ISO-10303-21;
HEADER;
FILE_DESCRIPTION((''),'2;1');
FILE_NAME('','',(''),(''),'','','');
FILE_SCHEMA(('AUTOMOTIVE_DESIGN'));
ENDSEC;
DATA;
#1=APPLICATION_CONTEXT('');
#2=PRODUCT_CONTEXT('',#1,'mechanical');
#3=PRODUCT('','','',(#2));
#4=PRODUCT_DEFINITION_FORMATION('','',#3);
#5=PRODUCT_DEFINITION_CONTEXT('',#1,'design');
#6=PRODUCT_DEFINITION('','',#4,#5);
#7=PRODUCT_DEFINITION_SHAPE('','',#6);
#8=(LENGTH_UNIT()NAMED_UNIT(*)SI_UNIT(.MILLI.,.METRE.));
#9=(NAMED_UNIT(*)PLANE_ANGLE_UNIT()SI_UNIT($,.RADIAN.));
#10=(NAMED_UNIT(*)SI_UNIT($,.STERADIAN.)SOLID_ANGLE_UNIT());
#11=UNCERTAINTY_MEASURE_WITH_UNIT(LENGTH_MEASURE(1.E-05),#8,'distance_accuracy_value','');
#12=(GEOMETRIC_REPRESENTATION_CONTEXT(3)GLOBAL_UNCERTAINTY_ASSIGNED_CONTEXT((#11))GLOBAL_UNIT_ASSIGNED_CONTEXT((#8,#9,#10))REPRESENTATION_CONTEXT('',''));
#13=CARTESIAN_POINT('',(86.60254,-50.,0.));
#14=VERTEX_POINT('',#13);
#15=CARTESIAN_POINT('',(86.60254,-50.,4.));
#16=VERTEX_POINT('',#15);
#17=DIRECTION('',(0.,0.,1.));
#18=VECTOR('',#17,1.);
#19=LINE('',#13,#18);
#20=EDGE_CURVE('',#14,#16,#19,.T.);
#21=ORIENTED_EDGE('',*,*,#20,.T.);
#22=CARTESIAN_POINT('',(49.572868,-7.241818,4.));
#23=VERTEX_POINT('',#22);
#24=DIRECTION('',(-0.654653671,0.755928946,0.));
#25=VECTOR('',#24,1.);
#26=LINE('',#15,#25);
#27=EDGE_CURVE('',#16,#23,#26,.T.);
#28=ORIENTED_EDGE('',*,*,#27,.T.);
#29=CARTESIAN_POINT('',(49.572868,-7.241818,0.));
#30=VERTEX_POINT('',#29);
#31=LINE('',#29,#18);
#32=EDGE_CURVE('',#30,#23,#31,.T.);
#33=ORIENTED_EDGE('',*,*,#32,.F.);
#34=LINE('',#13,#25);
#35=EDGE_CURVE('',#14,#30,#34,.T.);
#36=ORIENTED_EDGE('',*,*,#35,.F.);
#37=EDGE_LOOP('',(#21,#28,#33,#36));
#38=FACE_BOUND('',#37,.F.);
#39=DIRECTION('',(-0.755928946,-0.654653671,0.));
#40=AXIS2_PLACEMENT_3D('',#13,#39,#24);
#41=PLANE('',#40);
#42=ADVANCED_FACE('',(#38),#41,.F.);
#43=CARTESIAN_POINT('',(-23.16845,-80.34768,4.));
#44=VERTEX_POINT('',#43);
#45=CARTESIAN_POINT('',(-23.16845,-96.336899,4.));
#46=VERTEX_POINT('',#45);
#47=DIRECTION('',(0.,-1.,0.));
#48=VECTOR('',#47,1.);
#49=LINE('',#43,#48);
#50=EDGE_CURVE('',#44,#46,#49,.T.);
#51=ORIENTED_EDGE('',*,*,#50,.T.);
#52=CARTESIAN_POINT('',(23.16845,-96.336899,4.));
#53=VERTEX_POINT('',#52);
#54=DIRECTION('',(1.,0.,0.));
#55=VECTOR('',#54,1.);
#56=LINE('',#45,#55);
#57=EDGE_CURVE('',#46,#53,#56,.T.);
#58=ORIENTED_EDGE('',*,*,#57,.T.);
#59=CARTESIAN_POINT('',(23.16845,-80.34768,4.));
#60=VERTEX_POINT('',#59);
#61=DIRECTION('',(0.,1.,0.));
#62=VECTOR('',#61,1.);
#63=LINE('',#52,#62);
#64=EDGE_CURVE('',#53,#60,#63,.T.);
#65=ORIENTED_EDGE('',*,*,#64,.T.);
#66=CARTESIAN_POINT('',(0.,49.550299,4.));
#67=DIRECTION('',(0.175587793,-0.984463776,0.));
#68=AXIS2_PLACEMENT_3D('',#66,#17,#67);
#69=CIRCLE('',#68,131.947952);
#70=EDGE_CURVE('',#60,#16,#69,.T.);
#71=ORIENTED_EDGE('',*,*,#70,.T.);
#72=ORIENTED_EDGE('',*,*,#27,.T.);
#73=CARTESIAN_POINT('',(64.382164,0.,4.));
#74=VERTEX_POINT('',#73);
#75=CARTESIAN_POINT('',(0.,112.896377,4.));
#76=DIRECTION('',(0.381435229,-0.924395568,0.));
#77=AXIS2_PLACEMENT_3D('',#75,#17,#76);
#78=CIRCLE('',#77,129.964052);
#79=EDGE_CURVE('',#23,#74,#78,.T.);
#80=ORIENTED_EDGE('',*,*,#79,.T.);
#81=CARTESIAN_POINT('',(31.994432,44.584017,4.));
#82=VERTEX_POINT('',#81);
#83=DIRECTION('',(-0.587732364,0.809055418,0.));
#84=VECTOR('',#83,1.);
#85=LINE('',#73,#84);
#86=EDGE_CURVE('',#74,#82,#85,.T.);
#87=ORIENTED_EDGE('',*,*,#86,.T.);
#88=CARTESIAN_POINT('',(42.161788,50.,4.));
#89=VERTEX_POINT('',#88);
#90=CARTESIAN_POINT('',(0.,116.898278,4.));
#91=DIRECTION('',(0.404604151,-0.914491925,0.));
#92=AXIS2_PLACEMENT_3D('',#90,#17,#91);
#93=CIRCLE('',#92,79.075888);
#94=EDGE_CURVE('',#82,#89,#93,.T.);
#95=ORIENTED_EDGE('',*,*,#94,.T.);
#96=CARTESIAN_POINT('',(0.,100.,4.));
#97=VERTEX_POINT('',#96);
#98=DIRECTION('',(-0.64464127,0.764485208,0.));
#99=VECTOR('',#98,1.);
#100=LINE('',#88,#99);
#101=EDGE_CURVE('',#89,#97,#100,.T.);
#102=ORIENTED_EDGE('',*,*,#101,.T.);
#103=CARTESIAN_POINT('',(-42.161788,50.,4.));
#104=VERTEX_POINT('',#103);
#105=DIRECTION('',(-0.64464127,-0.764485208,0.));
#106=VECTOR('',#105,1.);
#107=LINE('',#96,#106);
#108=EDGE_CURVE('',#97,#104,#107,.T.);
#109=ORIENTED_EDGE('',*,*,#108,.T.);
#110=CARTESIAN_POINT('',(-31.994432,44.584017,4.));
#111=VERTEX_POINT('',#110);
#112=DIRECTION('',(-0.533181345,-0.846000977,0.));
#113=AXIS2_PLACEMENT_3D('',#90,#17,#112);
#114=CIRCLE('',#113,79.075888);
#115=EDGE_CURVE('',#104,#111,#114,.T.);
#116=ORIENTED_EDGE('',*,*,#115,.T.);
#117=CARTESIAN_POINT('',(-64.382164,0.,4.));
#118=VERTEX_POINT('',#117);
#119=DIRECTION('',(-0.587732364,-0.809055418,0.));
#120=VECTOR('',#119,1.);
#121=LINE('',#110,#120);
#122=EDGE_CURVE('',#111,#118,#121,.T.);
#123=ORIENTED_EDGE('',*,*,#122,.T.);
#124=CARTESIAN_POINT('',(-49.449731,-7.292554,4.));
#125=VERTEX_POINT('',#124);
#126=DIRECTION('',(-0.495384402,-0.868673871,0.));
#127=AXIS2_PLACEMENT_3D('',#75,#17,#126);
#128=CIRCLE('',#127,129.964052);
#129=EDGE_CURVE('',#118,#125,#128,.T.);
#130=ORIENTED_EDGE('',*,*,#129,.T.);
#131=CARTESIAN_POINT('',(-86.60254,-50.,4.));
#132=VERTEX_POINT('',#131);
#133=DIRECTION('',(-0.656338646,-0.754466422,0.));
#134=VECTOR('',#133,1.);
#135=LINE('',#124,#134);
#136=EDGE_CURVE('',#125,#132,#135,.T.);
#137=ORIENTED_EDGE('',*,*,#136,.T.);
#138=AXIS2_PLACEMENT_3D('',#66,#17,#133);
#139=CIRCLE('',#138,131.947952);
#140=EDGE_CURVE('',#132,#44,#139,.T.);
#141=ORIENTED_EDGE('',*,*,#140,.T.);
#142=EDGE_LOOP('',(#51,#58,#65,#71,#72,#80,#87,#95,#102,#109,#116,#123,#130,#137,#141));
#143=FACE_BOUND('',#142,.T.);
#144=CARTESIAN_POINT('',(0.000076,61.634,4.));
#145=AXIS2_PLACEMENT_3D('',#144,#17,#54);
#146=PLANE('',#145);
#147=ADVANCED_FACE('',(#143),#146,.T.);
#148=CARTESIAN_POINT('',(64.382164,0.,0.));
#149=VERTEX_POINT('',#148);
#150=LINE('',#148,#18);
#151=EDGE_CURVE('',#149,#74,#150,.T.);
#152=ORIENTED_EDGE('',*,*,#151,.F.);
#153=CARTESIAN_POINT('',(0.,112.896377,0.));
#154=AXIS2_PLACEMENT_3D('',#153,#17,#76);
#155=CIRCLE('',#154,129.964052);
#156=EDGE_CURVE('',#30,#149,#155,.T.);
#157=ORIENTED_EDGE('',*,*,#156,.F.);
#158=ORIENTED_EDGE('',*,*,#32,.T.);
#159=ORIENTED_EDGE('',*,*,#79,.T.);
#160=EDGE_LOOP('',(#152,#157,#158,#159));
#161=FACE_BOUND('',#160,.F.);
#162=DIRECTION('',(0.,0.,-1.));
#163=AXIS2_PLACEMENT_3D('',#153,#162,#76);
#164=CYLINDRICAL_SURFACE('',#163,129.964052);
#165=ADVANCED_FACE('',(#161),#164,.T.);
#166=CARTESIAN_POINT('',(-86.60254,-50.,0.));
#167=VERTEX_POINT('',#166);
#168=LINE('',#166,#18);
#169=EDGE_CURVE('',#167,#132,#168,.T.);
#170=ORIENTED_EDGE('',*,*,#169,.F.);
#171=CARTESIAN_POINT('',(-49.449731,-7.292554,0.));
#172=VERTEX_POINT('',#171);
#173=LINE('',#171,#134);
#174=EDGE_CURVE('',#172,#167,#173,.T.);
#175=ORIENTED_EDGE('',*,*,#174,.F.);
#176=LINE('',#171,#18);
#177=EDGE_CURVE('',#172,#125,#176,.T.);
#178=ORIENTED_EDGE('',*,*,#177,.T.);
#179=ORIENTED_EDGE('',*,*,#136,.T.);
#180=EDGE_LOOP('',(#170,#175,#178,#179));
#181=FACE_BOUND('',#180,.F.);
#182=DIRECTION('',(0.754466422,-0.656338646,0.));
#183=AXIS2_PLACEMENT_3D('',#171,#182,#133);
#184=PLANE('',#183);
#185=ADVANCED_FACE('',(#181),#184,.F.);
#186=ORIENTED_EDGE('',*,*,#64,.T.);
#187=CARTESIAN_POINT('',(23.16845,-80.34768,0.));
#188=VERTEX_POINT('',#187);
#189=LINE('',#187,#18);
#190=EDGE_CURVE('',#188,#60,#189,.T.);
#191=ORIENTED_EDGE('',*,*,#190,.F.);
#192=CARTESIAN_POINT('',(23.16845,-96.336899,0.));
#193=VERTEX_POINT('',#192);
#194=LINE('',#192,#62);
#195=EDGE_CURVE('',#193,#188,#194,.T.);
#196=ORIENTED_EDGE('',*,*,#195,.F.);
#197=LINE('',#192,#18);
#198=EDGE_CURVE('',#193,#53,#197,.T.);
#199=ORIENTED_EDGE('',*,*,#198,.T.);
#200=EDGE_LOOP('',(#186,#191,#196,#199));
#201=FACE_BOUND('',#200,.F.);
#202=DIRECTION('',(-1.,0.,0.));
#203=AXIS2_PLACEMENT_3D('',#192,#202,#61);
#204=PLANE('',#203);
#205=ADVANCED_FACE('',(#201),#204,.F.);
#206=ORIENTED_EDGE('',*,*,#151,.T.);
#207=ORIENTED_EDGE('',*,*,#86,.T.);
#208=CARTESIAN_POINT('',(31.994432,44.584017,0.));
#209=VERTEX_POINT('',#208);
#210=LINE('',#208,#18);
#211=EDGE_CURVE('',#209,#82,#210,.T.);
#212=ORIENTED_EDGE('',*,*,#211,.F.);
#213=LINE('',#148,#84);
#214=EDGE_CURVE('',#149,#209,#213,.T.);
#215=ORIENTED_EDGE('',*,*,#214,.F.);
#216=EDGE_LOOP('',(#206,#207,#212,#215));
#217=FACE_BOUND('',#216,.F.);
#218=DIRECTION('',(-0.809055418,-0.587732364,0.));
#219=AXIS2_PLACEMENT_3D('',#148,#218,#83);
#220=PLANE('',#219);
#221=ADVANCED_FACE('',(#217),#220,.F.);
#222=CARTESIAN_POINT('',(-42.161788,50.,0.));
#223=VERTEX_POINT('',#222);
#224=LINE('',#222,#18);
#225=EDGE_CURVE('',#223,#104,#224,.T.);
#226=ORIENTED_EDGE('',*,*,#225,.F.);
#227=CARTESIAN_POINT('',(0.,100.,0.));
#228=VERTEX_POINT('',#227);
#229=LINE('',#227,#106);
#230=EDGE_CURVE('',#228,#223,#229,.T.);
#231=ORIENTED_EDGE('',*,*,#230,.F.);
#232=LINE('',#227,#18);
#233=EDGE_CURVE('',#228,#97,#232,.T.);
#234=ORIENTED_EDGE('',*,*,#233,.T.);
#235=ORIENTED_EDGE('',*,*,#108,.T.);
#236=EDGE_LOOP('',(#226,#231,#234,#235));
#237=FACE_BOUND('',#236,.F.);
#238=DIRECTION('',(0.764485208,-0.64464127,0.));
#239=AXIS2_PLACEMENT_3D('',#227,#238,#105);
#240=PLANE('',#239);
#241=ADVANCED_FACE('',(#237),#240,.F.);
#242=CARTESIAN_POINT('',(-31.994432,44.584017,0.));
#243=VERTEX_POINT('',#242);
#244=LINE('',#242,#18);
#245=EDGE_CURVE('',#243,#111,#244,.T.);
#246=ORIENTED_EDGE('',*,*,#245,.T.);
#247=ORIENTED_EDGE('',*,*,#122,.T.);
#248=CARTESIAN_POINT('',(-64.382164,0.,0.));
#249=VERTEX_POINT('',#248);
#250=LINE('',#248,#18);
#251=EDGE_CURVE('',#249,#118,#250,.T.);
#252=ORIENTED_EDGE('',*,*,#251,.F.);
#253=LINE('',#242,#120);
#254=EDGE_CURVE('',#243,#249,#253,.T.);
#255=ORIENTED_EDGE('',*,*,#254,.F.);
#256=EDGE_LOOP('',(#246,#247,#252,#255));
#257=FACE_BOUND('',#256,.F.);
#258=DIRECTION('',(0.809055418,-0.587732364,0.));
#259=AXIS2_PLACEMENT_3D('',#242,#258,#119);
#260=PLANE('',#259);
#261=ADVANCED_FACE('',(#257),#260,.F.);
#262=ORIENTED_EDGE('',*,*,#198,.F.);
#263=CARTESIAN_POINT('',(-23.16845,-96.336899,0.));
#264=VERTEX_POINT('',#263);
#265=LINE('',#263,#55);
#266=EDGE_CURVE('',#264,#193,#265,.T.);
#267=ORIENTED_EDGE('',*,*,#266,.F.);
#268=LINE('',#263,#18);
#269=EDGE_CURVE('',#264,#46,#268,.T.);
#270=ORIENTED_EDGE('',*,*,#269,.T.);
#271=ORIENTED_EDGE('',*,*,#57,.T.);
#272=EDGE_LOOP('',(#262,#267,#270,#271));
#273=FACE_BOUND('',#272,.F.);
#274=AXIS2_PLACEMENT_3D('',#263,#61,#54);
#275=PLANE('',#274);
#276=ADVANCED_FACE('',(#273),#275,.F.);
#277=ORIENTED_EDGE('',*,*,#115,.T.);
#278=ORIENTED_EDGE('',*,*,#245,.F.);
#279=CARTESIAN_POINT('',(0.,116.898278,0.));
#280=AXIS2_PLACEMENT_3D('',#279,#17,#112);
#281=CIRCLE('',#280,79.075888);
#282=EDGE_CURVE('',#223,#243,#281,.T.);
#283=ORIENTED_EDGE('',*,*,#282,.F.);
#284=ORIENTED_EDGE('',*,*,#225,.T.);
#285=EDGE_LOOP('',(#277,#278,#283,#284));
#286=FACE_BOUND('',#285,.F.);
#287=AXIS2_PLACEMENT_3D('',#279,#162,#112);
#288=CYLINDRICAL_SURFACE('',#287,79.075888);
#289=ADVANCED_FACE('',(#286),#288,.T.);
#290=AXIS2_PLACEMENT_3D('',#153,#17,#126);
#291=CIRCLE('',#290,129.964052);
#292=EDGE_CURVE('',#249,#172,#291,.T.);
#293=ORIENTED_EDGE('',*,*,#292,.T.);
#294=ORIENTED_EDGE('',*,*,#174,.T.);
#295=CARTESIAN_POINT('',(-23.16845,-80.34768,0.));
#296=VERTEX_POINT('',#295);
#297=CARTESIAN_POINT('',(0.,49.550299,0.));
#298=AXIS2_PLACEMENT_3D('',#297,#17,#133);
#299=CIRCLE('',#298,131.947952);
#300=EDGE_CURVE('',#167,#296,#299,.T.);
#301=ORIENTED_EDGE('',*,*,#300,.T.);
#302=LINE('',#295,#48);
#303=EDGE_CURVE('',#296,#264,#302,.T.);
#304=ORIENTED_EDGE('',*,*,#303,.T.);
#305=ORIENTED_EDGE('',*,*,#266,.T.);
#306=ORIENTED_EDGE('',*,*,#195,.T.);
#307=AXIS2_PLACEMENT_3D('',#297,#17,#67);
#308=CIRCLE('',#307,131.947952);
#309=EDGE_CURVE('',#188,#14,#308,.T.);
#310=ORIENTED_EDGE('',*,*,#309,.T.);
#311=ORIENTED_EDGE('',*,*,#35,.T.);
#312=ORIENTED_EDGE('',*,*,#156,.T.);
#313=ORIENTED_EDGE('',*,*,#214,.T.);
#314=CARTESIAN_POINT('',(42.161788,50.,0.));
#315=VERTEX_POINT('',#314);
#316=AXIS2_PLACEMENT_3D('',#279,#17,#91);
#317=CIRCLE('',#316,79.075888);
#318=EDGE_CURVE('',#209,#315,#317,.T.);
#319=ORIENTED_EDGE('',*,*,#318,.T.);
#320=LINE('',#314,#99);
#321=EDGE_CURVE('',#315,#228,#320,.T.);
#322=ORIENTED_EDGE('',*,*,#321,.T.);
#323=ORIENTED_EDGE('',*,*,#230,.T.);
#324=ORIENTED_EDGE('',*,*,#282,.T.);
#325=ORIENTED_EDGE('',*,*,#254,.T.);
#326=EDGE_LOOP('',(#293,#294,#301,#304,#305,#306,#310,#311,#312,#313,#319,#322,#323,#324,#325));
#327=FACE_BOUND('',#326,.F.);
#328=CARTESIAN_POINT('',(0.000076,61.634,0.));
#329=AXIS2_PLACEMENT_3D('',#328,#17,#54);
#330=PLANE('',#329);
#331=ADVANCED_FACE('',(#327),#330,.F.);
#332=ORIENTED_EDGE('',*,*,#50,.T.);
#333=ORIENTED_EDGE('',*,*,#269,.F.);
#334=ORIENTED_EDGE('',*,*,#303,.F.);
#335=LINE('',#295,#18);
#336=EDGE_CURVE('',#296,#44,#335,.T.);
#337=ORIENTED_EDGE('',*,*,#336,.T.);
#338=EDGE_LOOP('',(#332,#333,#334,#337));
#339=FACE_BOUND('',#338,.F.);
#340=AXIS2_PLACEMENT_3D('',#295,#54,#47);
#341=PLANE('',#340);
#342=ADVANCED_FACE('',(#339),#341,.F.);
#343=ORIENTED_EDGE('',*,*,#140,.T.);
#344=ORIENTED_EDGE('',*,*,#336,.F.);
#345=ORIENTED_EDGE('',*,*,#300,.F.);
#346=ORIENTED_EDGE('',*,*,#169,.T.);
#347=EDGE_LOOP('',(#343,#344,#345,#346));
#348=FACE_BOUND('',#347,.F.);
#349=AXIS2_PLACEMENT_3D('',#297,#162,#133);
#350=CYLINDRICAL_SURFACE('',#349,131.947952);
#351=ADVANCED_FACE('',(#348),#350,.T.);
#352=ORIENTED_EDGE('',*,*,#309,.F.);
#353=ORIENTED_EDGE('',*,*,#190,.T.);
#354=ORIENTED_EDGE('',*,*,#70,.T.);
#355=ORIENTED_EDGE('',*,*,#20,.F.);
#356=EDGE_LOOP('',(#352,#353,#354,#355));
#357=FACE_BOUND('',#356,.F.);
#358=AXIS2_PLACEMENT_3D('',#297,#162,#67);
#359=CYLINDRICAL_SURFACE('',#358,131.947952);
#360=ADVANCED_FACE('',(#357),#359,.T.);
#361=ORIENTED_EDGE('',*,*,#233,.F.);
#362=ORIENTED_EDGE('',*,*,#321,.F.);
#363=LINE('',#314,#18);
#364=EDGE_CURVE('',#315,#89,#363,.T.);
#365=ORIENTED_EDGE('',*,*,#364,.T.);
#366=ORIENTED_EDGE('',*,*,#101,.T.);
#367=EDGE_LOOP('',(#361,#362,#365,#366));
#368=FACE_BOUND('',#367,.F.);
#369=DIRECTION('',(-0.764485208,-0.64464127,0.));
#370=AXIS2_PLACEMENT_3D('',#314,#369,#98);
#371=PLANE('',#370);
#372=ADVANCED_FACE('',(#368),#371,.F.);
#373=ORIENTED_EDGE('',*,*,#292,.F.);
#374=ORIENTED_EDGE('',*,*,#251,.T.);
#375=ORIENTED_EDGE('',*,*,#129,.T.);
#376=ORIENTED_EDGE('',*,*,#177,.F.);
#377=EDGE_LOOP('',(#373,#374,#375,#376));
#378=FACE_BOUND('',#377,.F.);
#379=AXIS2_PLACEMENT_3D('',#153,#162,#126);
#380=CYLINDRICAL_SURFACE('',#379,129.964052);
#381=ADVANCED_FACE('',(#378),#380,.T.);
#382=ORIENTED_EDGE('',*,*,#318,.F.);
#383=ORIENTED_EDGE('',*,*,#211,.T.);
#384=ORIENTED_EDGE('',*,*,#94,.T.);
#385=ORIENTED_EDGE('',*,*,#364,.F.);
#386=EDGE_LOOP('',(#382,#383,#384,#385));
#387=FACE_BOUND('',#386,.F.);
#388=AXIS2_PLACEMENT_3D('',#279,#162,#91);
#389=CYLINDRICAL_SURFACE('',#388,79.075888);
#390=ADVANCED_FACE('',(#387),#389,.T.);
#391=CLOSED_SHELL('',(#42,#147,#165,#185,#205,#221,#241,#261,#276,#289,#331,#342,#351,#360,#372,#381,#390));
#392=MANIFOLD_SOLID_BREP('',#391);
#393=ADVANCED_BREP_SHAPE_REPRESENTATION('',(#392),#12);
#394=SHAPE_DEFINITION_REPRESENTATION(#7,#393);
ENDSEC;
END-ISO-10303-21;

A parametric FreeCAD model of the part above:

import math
import FreeCAD as App
import Part
import Sketcher
Q = App.Units.Quantity

doc = App.newDocument("Part")
body = doc.addObject("PartDesign::Body", "Body")

sketch1 = body.newObject("Sketcher::SketchObject", "Sketch")
sketch1.AttachmentSupport = (doc.getObject("XY_Plane"), [""])
sketch1.MapMode = "FlatFace"
sketch1.addGeometry([
    Part.LineSegment(App.Vector(0, 100, 0), App.Vector(-42.161788, 50, 0)),
    Part.ArcOfCircle(Part.Circle(App.Vector(0, 116.898278, 0), App.Vector(0, 0, 1), 79.075888), math.radians(-122.220659), math.radians(-113.866324)),
    Part.LineSegment(App.Vector(-31.994432, 44.584017, 0), App.Vector(-64.382164, 0, 0)),
    Part.ArcOfCircle(Part.Circle(App.Vector(0, 112.896377, 0), App.Vector(0, 0, 1), 129.964052), math.radians(-119.695101), math.radians(-112.363899)),
    Part.LineSegment(App.Vector(-49.449731, -7.292554, 0), App.Vector(-86.60254, -50, 0)),
    Part.ArcOfCircle(Part.Circle(App.Vector(0, 49.550299, 0), App.Vector(0, 0, 1), 131.947952), math.radians(-131.021231), math.radians(-100.112866)),
    Part.LineSegment(App.Vector(-23.16845, -80.34768, 0), App.Vector(-23.16845, -96.336899, 0)),
    Part.LineSegment(App.Vector(-23.16845, -96.336899, 0), App.Vector(23.16845, -96.336899, 0)),
    Part.LineSegment(App.Vector(23.16845, -96.336899, 0), App.Vector(23.16845, -80.34768, 0)),
    Part.ArcOfCircle(Part.Circle(App.Vector(0, 49.550299, 0), App.Vector(0, 0, 1), 131.947952), math.radians(-79.887134), math.radians(-48.978769)),
    Part.LineSegment(App.Vector(86.60254, -50, 0), App.Vector(49.572868, -7.241817, 0)),
    Part.ArcOfCircle(Part.Circle(App.Vector(0, 112.896377, 0), App.Vector(0, 0, 1), 129.964052), math.radians(-67.577388), math.radians(-60.304899)),
    Part.LineSegment(App.Vector(64.382164, 0, 0), App.Vector(31.994432, 44.584017, 0)),
    Part.ArcOfCircle(Part.Circle(App.Vector(0, 116.898278, 0), App.Vector(0, 0, 1), 79.075888), math.radians(-66.133676), math.radians(-57.779341)),
    Part.LineSegment(App.Vector(42.161788, 50, 0), App.Vector(0, 100, 0)),
], False)
sketch1.addConstraint([
    Sketcher.Constraint("Coincident", 0, 2, 1, 1),
    Sketcher.Constraint("Coincident", 1, 2, 2, 1),
    Sketcher.Constraint("Coincident", 2, 2, 3, 1),
    Sketcher.Constraint("Coincident", 3, 2, 4, 1),
    Sketcher.Constraint("Coincident", 4, 2, 5, 1),
    Sketcher.Constraint("Coincident", 5, 2, 6, 1),
    Sketcher.Constraint("Coincident", 6, 2, 7, 1),
    Sketcher.Constraint("Coincident", 7, 2, 8, 1),
    Sketcher.Constraint("Coincident", 8, 2, 9, 1),
    Sketcher.Constraint("Coincident", 9, 2, 10, 1),
    Sketcher.Constraint("Coincident", 10, 2, 11, 1),
    Sketcher.Constraint("Coincident", 11, 2, 12, 1),
    Sketcher.Constraint("Coincident", 12, 2, 13, 1),
    Sketcher.Constraint("Coincident", 13, 2, 14, 1),
    Sketcher.Constraint("Coincident", 14, 2, 0, 1),
    Sketcher.Constraint("Vertical", 6),
    Sketcher.Constraint("Horizontal", 7),
    Sketcher.Constraint("Vertical", 8),
    Sketcher.Constraint("Coincident", 9, 3, 5, 3),
    Sketcher.Constraint("Coincident", 11, 3, 3, 3),
    Sketcher.Constraint("Coincident", 13, 3, 1, 3),
    Sketcher.Constraint("Equal", 5, 9),
    Sketcher.Constraint("Equal", 3, 11),
    Sketcher.Constraint("Equal", 1, 13),
    Sketcher.Constraint("Symmetric", 2, 2, 11, 2, -1, 1),
    Sketcher.Constraint("Symmetric", 5, 2, 8, 2, -2),
    Sketcher.Constraint("Symmetric", 1, 2, 12, 2, -2),
    Sketcher.Constraint("PointOnObject", 3, 3, -2),
    Sketcher.Constraint("PointOnObject", 14, 2, -2),
    Sketcher.Constraint("Horizontal", 4, 2, 9, 2),
    Sketcher.Constraint("Horizontal", 0, 2, 13, 2),
    Sketcher.Constraint("DistanceY", -1, 1, 0, 2, Q("50 mm")),
    Sketcher.Constraint("DistanceY", 4, 2, -1, 1, Q("50 mm")),
    Sketcher.Constraint("DistanceY", -1, 1, 14, 2, Q("100 mm")),
    Sketcher.Constraint("DistanceX", 7, 1, 7, 2, Q("46.336899 mm")),
    Sketcher.Constraint("Radius", 1, Q("79.075888 mm")),
    Sketcher.Constraint("Radius", 3, Q("129.964052 mm")),
    Sketcher.Constraint("Radius", 5, Q("131.947952 mm")),
    Sketcher.Constraint("DistanceY", 6, 2, 6, 1, Q("15.98922 mm")),
    Sketcher.Constraint("DistanceY", -1, 1, 5, 3, Q("49.550299 mm")),
    Sketcher.Constraint("DistanceY", 3, 3, 1, 3, Q("4.001902 mm")),
    Sketcher.Constraint("DistanceX", 3, 2, 1, 2, Q("17.455298 mm")),
    Sketcher.Constraint("Distance", 0, Q("65.403489 mm")),
    Sketcher.Constraint("Distance", 2, Q("55.106259 mm")),
    Sketcher.Constraint("Distance", 10, Q("56.563759 mm")),
])
pad1 = body.newObject("PartDesign::Pad", "Pad")
pad1.Profile = sketch1
pad1.Length = 4

doc.recompute()
